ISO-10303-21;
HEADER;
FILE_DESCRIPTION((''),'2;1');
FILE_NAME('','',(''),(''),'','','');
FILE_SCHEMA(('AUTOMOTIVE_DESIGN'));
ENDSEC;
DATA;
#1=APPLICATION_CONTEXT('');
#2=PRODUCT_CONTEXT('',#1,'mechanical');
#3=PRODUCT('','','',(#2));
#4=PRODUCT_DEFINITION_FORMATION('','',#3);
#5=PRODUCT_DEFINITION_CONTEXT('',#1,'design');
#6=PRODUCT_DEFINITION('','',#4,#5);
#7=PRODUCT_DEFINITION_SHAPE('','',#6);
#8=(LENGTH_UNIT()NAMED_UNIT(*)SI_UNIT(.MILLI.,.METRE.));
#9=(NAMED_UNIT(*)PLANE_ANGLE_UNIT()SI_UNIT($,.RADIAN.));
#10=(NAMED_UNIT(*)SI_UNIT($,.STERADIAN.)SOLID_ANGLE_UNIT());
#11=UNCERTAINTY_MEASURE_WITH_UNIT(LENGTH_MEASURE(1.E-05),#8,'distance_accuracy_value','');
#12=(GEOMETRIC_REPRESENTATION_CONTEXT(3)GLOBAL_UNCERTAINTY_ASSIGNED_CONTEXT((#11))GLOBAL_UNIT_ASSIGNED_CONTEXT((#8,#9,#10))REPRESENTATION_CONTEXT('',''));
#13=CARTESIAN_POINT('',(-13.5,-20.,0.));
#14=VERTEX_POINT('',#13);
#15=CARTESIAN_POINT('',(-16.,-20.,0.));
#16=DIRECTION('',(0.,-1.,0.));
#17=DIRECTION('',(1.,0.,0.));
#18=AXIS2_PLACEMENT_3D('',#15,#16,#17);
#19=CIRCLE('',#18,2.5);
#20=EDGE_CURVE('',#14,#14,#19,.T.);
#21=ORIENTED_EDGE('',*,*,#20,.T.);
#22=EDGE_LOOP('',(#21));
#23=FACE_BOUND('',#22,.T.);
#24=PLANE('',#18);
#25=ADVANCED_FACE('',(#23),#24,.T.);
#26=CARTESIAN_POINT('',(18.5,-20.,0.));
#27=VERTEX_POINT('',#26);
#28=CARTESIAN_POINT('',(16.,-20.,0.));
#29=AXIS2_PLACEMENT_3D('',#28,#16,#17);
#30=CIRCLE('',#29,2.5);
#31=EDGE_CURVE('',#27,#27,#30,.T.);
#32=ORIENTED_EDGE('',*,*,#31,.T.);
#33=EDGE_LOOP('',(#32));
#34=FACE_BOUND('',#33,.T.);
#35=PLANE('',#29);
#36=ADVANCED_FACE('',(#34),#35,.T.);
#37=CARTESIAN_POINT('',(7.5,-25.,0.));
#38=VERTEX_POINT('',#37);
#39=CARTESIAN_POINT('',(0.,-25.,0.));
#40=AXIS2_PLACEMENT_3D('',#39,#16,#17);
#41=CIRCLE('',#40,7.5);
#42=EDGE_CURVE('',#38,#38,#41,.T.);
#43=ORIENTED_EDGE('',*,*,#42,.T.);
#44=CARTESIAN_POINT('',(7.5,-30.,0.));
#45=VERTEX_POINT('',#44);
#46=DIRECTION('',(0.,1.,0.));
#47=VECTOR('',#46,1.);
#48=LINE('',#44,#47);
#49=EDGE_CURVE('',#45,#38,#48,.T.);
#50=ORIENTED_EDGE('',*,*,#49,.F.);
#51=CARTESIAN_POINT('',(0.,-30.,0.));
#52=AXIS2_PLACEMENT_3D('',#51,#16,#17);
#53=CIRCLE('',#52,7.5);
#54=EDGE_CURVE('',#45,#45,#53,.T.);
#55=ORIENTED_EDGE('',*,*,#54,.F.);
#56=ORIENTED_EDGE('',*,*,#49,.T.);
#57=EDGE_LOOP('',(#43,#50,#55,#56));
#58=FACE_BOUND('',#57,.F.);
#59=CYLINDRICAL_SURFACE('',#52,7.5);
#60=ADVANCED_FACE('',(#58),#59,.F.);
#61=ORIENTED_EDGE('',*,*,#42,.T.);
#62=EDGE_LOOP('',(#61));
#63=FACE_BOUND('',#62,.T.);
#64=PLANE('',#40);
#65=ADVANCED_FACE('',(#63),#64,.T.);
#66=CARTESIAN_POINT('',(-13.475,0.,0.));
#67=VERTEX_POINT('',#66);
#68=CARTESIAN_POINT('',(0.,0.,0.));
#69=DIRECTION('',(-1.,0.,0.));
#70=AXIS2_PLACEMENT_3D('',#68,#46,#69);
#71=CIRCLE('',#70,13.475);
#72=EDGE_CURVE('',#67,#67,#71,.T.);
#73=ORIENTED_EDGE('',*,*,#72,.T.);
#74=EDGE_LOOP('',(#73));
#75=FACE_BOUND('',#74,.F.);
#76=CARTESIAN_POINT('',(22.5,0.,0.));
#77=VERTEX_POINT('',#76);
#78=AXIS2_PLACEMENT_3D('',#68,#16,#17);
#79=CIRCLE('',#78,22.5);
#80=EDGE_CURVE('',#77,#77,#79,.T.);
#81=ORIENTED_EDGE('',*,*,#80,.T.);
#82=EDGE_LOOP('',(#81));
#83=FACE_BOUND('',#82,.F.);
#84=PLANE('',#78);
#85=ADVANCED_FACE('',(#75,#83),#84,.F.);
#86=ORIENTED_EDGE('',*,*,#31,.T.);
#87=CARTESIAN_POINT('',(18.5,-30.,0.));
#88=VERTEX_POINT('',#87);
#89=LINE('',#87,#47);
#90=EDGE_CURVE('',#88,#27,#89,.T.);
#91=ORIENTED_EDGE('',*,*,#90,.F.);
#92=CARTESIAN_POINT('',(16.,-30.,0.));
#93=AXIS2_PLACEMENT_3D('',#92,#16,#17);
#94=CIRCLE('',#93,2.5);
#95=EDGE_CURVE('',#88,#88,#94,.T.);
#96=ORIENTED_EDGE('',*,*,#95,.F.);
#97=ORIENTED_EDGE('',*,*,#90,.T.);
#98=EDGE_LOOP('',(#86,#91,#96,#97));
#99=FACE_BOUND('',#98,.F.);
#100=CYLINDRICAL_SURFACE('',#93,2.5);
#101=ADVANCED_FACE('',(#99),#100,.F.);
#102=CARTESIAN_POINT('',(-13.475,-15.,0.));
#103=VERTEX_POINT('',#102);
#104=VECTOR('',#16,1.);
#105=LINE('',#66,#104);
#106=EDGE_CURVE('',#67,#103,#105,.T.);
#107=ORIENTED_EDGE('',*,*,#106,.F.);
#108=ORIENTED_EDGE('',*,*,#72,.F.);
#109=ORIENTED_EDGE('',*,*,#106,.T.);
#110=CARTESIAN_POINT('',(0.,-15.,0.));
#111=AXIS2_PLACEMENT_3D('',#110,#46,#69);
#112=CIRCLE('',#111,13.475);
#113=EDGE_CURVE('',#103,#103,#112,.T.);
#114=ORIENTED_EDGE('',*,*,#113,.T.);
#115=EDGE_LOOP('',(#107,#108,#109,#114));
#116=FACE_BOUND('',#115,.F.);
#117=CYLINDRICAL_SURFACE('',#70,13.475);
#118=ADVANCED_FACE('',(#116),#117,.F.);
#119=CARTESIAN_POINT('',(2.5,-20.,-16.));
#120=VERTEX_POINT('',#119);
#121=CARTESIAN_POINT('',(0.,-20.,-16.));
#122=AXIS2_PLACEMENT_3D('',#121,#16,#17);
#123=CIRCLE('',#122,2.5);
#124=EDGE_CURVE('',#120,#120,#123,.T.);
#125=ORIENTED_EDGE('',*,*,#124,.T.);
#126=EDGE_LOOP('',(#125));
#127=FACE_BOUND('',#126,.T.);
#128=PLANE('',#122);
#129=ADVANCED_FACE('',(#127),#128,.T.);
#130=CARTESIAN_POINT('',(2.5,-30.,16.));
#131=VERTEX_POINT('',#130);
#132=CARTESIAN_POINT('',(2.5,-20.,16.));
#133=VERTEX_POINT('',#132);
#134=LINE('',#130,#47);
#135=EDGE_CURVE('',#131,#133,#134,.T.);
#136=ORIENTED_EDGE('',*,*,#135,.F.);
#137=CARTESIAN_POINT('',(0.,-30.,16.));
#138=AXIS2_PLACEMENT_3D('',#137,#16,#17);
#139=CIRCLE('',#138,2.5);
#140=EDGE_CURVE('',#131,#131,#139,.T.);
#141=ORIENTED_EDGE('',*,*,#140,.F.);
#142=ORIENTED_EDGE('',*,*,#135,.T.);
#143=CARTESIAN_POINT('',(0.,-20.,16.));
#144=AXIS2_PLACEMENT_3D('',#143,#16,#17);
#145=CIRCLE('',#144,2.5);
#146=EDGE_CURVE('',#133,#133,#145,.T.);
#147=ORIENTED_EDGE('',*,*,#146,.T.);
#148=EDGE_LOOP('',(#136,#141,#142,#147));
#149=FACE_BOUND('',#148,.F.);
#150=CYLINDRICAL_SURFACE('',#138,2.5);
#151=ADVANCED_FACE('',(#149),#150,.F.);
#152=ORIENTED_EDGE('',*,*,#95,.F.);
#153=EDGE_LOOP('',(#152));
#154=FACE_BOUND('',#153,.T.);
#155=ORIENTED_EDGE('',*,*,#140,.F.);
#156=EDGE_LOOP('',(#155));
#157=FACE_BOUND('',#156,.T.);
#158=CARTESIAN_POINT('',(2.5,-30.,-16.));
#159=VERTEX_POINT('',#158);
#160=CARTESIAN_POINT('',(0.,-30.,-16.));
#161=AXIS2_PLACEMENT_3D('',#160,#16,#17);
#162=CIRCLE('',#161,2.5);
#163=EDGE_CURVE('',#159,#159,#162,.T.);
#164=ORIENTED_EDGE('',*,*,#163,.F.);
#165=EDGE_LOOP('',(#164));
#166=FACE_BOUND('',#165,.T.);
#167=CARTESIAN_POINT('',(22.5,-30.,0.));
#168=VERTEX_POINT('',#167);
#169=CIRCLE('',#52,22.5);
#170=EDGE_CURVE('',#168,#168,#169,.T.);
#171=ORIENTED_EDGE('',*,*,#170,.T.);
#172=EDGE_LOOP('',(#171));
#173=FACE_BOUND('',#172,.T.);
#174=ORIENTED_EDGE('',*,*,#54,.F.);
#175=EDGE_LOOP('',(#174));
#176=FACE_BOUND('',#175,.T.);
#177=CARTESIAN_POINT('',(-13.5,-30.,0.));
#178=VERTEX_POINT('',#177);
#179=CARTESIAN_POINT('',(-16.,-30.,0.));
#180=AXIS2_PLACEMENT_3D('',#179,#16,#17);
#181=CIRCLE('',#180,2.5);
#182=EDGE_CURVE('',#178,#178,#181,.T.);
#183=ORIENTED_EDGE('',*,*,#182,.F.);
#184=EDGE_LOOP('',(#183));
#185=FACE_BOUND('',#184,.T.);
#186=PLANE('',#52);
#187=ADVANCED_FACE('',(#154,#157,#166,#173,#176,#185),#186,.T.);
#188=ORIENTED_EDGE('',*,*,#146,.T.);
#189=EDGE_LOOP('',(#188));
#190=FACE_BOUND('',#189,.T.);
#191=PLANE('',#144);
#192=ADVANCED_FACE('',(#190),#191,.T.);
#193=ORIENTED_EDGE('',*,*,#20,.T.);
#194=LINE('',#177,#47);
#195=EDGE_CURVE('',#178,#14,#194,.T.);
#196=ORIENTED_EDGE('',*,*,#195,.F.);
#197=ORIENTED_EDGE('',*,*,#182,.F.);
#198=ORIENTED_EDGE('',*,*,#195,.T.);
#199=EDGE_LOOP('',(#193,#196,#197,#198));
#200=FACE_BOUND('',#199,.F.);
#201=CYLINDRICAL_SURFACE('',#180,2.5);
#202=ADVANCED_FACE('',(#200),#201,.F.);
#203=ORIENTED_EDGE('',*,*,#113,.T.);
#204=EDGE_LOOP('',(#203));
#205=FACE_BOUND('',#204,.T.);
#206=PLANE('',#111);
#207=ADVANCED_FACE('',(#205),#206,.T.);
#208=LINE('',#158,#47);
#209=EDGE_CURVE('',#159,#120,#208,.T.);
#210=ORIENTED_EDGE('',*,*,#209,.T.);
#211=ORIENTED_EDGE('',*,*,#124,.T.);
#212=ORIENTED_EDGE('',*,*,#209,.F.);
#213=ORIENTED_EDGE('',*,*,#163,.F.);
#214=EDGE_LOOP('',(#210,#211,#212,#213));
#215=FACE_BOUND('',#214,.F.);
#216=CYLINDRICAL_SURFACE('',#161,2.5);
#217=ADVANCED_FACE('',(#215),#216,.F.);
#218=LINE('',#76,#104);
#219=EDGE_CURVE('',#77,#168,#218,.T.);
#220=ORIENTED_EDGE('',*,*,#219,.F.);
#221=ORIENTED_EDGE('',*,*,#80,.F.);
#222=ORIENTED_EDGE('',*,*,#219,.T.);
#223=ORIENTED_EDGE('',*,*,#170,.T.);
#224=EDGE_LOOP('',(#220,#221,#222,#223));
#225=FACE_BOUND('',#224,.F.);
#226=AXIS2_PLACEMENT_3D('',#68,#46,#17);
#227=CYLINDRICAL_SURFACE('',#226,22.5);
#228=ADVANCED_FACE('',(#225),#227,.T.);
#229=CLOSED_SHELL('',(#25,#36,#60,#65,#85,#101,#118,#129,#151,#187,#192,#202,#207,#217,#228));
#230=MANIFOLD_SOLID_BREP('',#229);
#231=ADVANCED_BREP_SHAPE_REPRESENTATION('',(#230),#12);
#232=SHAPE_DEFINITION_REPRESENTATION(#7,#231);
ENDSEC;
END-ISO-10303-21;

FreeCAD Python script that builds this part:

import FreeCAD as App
import Part
import Sketcher

V = App.Vector
Q = App.Units.Quantity

doc = App.newDocument("Part")
body = doc.addObject("PartDesign::Body", "Body")

# Sketch on XZ plane
sketch1 = body.newObject("Sketcher::SketchObject", "Sketch")
sketch1.AttachmentSupport = (doc.getObject("XZ_Plane"), [""])
sketch1.MapMode = "FlatFace"
sketch1.addGeometry(Part.Circle(V(0, 0, 0), V(0, 0, 1), 22.5), False)
sketch1.addConstraint(Sketcher.Constraint("Coincident", 0, 3, -1, 1))
sketch1.addConstraint(Sketcher.Constraint("Diameter", 0, Q("45 mm")))
pad1 = body.newObject("PartDesign::Pad", "Pad")
pad1.Profile = sketch1
pad1.Length = 30

# Sketch on XZ plane
sketch2 = body.newObject("Sketcher::SketchObject", "Sketch001")
sketch2.AttachmentSupport = (doc.getObject("XZ_Plane"), [""])
sketch2.MapMode = "FlatFace"
sketch2.AttachmentOffset = App.Placement(V(0, 0, 30), App.Rotation())
sketch2.addGeometry(Part.Circle(V(0, 0, 0), V(0, 0, 1), 7.5), False)
sketch2.addConstraint(Sketcher.Constraint("Coincident", 0, 3, -1, 1))
sketch2.addConstraint(Sketcher.Constraint("Diameter", 0, Q("15 mm")))
pocket1 = body.newObject("PartDesign::Pocket", "Pocket")
pocket1.Profile = sketch2
pocket1.Length = 5

# Sketch on XZ plane
sketch3 = body.newObject("Sketcher::SketchObject", "Sketch002")
sketch3.AttachmentSupport = (doc.getObject("XZ_Plane"), [""])
sketch3.MapMode = "FlatFace"
sketch3.AttachmentOffset = App.Placement(V(0, 0, 30), App.Rotation())
sketch3.addGeometry(Part.Circle(V(-16, 0, 0), V(0, 0, 1), 2.5), False)
sketch3.addGeometry(Part.Circle(V(0, 16, 0), V(0, 0, 1), 2.5), False)
sketch3.addGeometry(Part.Circle(V(16, 0, 0), V(0, 0, 1), 2.5), False)
sketch3.addGeometry(Part.Circle(V(0, -16, 0), V(0, 0, 1), 2.5), False)
sketch3.addConstraint(Sketcher.Constraint("Equal", 0, 1))
sketch3.addConstraint(Sketcher.Constraint("Equal", 1, 2))
sketch3.addConstraint(Sketcher.Constraint("Equal", 2, 3))
sketch3.addConstraint(Sketcher.Constraint("Symmetric", 0, 3, 2, 3, -1, 1))
sketch3.addConstraint(Sketcher.Constraint("Symmetric", 1, 3, 3, 3, -1, 1))
sketch3.addConstraint(Sketcher.Constraint("PointOnObject", 0, 3, -1))
sketch3.addConstraint(Sketcher.Constraint("PointOnObject", 1, 3, -2))
sketch3.addConstraint(Sketcher.Constraint("Diameter", 0, Q("5 mm")))
sketch3.addConstraint(Sketcher.Constraint("DistanceX", 0, 3, -1, 1, Q("16 mm")))
sketch3.addConstraint(Sketcher.Constraint("DistanceY", -1, 1, 1, 3, Q("16 mm")))
pocket2 = body.newObject("PartDesign::Pocket", "Pocket001")
pocket2.Profile = sketch3
pocket2.Length = 10

# Sketch on XZ plane
sketch4 = body.newObject("Sketcher::SketchObject", "Sketch003")
sketch4.AttachmentSupport = (doc.getObject("XZ_Plane"), [""])
sketch4.MapMode = "FlatFace"
sketch4.addGeometry(Part.Circle(V(0, 0, 0), V(0, 0, 1), 13.475), False)
sketch4.addConstraint(Sketcher.Constraint("Coincident", 0, 3, -1, 1))
sketch4.addConstraint(Sketcher.Constraint("Diameter", 0, Q("26.95 mm")))
pocket3 = body.newObject("PartDesign::Pocket", "Pocket002")
pocket3.Profile = sketch4
pocket3.Length = 15
pocket3.Reversed = True

doc.recompute()
